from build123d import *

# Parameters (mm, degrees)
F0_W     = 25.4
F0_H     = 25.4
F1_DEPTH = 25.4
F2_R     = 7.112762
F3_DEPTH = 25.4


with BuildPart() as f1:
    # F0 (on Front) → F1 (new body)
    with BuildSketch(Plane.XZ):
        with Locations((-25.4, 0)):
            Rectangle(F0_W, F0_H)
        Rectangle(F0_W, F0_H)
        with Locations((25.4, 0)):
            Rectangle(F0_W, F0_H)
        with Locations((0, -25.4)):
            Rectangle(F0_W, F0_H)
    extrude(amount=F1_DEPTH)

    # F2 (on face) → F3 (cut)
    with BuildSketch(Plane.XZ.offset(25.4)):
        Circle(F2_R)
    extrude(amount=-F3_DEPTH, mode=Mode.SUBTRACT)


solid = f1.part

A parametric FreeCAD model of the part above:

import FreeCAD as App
import Part
import Sketcher
from FreeCAD import Vector
Q = App.Units.Quantity


def add_polygon(sketch, points):
    """Adds a closed chain of lines whose ends are joined by coincident constraints."""
    first, n = sketch.GeometryCount, len(points)
    for a, b in zip(points, points[1:] + points[:1]):
        sketch.addGeometry(Part.LineSegment(App.Vector(*a, 0), App.Vector(*b, 0)), False)
    for i in range(n):
        sketch.addConstraint(Sketcher.Constraint("Coincident", first + i, 2, first + (i + 1) % n, 1))

doc = App.newDocument("Part")
params = doc.addObject("Spreadsheet::Sheet", "Params")
for row, (alias, value) in enumerate([
    ("sketch1_width", "1 in"),
    ("pad1_length", "1 in"),
    ("pocket1_length", "1 in"),
], start=1):
    params.set(f"A{row}", alias)
    params.set(f"B{row}", "=" + value)
    params.setAlias(f"B{row}", alias)

body = doc.addObject("PartDesign::Body", "Body")

# Sketch on XZ plane
sketch1 = body.newObject("Sketcher::SketchObject", "Sketch")
sketch1.AttachmentSupport = (doc.getObject("XZ_Plane"), [""])
sketch1.MapMode = "FlatFace"
add_polygon(sketch1, [(-38.1, 12.7), (-38.1, -12.7), (-12.7, -12.7), (-12.7, -38.1), (12.7, -38.1), (12.7, -12.7), (38.1, -12.7), (38.1, 12.7)])  # lines 0-7
sketch1.addConstraint(Sketcher.Constraint("Vertical", 0))
sketch1.addConstraint(Sketcher.Constraint("Horizontal", 1))
sketch1.addConstraint(Sketcher.Constraint("Vertical", 2))
sketch1.addConstraint(Sketcher.Constraint("Horizontal", 3))
sketch1.addConstraint(Sketcher.Constraint("Vertical", 4))
sketch1.addConstraint(Sketcher.Constraint("Horizontal", 5))
sketch1.addConstraint(Sketcher.Constraint("Vertical", 6))
sketch1.addConstraint(Sketcher.Constraint("Horizontal", 7))
sketch1.addConstraint(Sketcher.Constraint("Symmetric", 0, 2, 6, 2, -1, 1))
sketch1.addConstraint(Sketcher.Constraint("Symmetric", 1, 2, 4, 2, -2))
sketch1.addConstraint(Sketcher.Constraint("Equal", 1, 3))
sketch1.addConstraint(Sketcher.Constraint("Equal", 5, 0))
sketch1.addConstraint(Sketcher.Constraint("Equal", 0, 2))
sketch1.addConstraint(Sketcher.Constraint("DistanceX", 1, 1, 1, 2, Q("1 in")))
sketch1.setExpression("Constraints[21]", "Params.sketch1_width")
pad1 = body.newObject("PartDesign::Pad", "Pad")
pad1.Profile = sketch1
pad1.setExpression("Length", "Params.pad1_length")

# Sketch on XZ plane
sketch2 = body.newObject("Sketcher::SketchObject", "Sketch001")
sketch2.AttachmentSupport = (doc.getObject("XZ_Plane"), [""])
sketch2.MapMode = "FlatFace"
sketch2.AttachmentOffset = App.Placement(Vector(0, 0, 1 * 25.4), App.Rotation())
sketch2.addGeometry(Part.Circle(Vector(0, 0, 0), Vector(0, 0, 1), 7.112762), False)
sketch2.addConstraint(Sketcher.Constraint("Coincident", 0, 3, -1, 1))
sketch2.addConstraint(Sketcher.Constraint("Diameter", 0, 14.225524))
pocket1 = body.newObject("PartDesign::Pocket", "Pocket")
pocket1.Profile = sketch2
pocket1.setExpression("Length", "Params.pocket1_length")

doc.recompute()
